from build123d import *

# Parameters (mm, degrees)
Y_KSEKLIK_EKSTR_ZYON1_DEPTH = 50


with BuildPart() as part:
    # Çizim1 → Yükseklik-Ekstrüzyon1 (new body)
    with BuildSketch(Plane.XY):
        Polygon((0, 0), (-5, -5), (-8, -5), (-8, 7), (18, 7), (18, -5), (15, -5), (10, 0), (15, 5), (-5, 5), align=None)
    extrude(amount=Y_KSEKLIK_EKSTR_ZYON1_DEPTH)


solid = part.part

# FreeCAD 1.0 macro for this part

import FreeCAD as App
import Part
import Sketcher

V = App.Vector


def add_polygon(sketch, points):
    """Adds a closed chain of lines whose ends are joined by coincident constraints."""
    first, n = sketch.GeometryCount, len(points)
    for a, b in zip(points, points[1:] + points[:1]):
        sketch.addGeometry(Part.LineSegment(App.Vector(*a, 0), App.Vector(*b, 0)), False)
    for i in range(n):
        sketch.addConstraint(Sketcher.Constraint("Coincident", first + i, 2, first + (i + 1) % n, 1))

doc = App.newDocument("Part")
params = doc.addObject("Spreadsheet::Sheet", "Params")
for row, (alias, value) in enumerate([
    ("sketch1_width", "20 mm"),
    ("sketch1_width2", "3 mm"),
    ("sketch1_height", "12 mm"),
    ("pad1_length", "50 mm"),
], start=1):
    params.set(f"A{row}", alias)
    params.set(f"B{row}", "=" + value)
    params.setAlias(f"B{row}", alias)

body = doc.addObject("PartDesign::Body", "Body")

sketch1 = body.newObject("Sketcher::SketchObject", "Sketch")
sketch1.AttachmentSupport = (doc.getObject("XY_Plane"), [""])
sketch1.MapMode = "FlatFace"
add_polygon(sketch1, [(-5, -5), (0, 0), (-5, 5), (15, 5), (10, 0), (15, -5), (18, -5), (18, 7), (-8, 7), (-8, -5)])
sketch1.addConstraint([
    Sketcher.Constraint("Horizontal", 2),
    Sketcher.Constraint("Horizontal", 5),
    Sketcher.Constraint("Vertical", 6),
    Sketcher.Constraint("Horizontal", 7),
    Sketcher.Constraint("Vertical", 8),
    Sketcher.Constraint("Horizontal", 9),
    Sketcher.Constraint("Coincident", 0, 2, -1, 1),
    Sketcher.Constraint("Symmetric", 2, 2, 4, 2, -1),
    Sketcher.Constraint("Symmetric", 1, 2, 9, 2, -1),
    Sketcher.Constraint("PointOnObject", 3, 2, -1),
    Sketcher.Constraint("Perpendicular", 0, 1),
    Sketcher.Constraint("Perpendicular", 1, 3),
    Sketcher.Constraint("Equal", 5, 9),
    Sketcher.Constraint("DistanceX", 2, 1, 2, 2, 20.0),
    Sketcher.Constraint("DistanceX", 5, 1, 5, 2, 3.0),
    Sketcher.Constraint("DistanceY", 6, 1, 6, 2, 12.0),
    Sketcher.Constraint("DistanceX", 1, 2, -1, 1, 5.0),
])
sketch1.setExpression("Constraints[23]", "Params.sketch1_width")
sketch1.setExpression("Constraints[24]", "Params.sketch1_width2")
sketch1.setExpression("Constraints[25]", "Params.sketch1_height")
pad1 = body.newObject("PartDesign::Pad", "Pad")
pad1.Profile = sketch1
pad1.setExpression("Length", "Params.pad1_length")

doc.recompute()
